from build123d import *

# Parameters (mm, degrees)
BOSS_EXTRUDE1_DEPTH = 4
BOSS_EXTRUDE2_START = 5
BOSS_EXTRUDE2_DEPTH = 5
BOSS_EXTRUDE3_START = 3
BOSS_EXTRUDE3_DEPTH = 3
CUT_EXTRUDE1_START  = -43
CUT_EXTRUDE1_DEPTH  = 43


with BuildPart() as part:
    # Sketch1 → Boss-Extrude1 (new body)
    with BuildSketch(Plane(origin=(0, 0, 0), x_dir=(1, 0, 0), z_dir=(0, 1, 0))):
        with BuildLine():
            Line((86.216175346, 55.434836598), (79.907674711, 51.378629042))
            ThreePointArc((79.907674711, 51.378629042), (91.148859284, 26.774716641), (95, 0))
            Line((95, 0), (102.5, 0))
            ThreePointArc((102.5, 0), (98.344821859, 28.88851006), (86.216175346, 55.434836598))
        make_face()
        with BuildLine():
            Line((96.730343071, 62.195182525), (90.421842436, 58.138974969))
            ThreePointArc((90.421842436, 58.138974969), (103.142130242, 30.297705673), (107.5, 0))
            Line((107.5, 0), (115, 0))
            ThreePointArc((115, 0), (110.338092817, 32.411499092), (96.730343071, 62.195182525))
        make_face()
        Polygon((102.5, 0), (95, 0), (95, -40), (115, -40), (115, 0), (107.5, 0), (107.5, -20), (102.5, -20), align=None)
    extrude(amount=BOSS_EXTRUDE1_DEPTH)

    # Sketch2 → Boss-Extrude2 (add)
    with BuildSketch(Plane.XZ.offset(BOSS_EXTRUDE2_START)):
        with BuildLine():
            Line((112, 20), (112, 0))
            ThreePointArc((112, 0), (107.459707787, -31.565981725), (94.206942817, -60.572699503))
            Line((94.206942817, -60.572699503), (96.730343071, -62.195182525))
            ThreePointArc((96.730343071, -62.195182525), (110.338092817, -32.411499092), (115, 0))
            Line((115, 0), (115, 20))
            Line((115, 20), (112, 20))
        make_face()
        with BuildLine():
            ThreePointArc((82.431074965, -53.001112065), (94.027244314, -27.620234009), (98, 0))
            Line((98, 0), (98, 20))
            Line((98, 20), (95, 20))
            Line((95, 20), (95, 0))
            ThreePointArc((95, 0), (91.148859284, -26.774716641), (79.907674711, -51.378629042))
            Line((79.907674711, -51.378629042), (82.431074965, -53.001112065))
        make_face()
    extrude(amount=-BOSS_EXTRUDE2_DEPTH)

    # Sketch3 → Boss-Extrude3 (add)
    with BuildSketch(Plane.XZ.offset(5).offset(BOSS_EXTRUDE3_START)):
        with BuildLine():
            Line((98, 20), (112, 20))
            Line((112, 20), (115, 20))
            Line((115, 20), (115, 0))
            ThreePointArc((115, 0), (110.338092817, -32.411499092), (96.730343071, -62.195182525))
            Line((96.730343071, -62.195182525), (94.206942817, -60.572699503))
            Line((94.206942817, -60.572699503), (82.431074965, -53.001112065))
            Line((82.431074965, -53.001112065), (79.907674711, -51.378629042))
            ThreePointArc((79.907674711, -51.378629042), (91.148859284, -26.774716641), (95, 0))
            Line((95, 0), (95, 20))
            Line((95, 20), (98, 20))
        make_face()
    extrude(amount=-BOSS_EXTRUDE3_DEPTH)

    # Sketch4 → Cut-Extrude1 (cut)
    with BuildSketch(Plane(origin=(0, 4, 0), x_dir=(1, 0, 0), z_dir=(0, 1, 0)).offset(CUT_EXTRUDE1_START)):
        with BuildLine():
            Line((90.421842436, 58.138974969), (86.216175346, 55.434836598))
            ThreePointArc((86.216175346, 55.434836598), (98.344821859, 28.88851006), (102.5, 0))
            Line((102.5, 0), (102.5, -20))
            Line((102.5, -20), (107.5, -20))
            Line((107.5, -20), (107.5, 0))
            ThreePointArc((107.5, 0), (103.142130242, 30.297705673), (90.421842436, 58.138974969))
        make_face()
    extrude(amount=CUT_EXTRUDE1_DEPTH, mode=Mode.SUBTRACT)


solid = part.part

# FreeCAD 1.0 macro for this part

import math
import FreeCAD as App
import Part
import Sketcher
from FreeCAD import Vector
Q = App.Units.Quantity

doc = App.newDocument("Part")
params = doc.addObject("Spreadsheet::Sheet", "Params")
for row, (alias, value) in enumerate([
    ("sketch1_radius", "95 mm"),
    ("sketch1_radius2", "115 mm"),
    ("sketch1_radius3", "107.5 mm"),
    ("sketch1_height", "40 mm"),
    ("pad1_length", "4 mm"),
    ("sketch2_radius", "112 mm"),
    ("sketch2_radius2", "115 mm"),
    ("sketch2_radius3", "98 mm"),
    ("sketch2_height", "20 mm"),
    ("pad2_length", "5 mm"),
    ("sketch3_radius", "95 mm"),
    ("sketch3_radius2", "115 mm"),
    ("sketch3_length", "3 mm"),
    ("pad3_length", "3 mm"),
    ("sketch4_radius", "102.5 mm"),
    ("sketch4_radius2", "107.5 mm"),
    ("sketch4_height", "20 mm"),
    ("pocket1_length", "43 mm"),
], start=1):
    params.set(f"A{row}", alias)
    params.set(f"B{row}", "=" + value)
    params.setAlias(f"B{row}", alias)

body = doc.addObject("PartDesign::Body", "Body")

# Sketch on XZ plane
sketch1 = body.newObject("Sketcher::SketchObject", "Sketch")
sketch1.AttachmentSupport = (doc.getObject("XZ_Plane"), [""])
sketch1.MapMode = "FlatFace"
sketch1.addGeometry(Part.LineSegment(Vector(86, -55, 0), Vector(80, -51, 0)), False)
sketch1.addGeometry(Part.ArcOfCircle(Part.Circle(Vector(0, 0, 0), Vector(0, 0, 1), 95), math.radians(-33), math.radians(0)), False)
sketch1.addGeometry(Part.LineSegment(Vector(95, 0, 0), Vector(95, 40, 0)), False)
sketch1.addGeometry(Part.LineSegment(Vector(95, 40, 0), Vector(115, 40, 0)), False)
sketch1.addGeometry(Part.LineSegment(Vector(115, 40, 0), Vector(115, 0, 0)), False)
sketch1.addGeometry(Part.ArcOfCircle(Part.Circle(Vector(0, 0, 0), Vector(0, 0, 1), 115), math.radians(-33), math.radians(0)), False)
sketch1.addGeometry(Part.LineSegment(Vector(97, -62, 0), Vector(90, -58, 0)), False)
sketch1.addGeometry(Part.ArcOfCircle(Part.Circle(Vector(0, 0, 0), Vector(0, 0, 1), 108), math.radians(-33), math.radians(0)), False)
sketch1.addGeometry(Part.LineSegment(Vector(108, 0, 0), Vector(108, 20, 0)), False)
sketch1.addGeometry(Part.LineSegment(Vector(108, 20, 0), Vector(102, 20, 0)), False)
sketch1.addGeometry(Part.LineSegment(Vector(102, 20, 0), Vector(102, 0, 0)), False)
sketch1.addGeometry(Part.ArcOfCircle(Part.Circle(Vector(0, 0, 0), Vector(0, 0, 1), 102), math.radians(-33), math.radians(0)), False)
sketch1.addConstraint(Sketcher.Constraint("Coincident", 0, 2, 1, 1))
sketch1.addConstraint(Sketcher.Constraint("Tangent", 1, 2, 2, 1))
sketch1.addConstraint(Sketcher.Constraint("Coincident", 2, 2, 3, 1))
sketch1.addConstraint(Sketcher.Constraint("Coincident", 3, 2, 4, 1))
sketch1.addConstraint(Sketcher.Constraint("Tangent", 4, 2, 5, 2))
sketch1.addConstraint(Sketcher.Constraint("Coincident", 5, 1, 6, 1))
sketch1.addConstraint(Sketcher.Constraint("Coincident", 6, 2, 7, 1))
sketch1.addConstraint(Sketcher.Constraint("Tangent", 7, 2, 8, 1))
sketch1.addConstraint(Sketcher.Constraint("Coincident", 8, 2, 9, 1))
sketch1.addConstraint(Sketcher.Constraint("Coincident", 9, 2, 10, 1))
sketch1.addConstraint(Sketcher.Constraint("Tangent", 10, 2, 11, 2))
sketch1.addConstraint(Sketcher.Constraint("Coincident", 11, 1, 0, 1))
sketch1.addConstraint(Sketcher.Constraint("Vertical", 2))
sketch1.addConstraint(Sketcher.Constraint("Horizontal", 3))
sketch1.addConstraint(Sketcher.Constraint("Vertical", 4))
sketch1.addConstraint(Sketcher.Constraint("Vertical", 8))
sketch1.addConstraint(Sketcher.Constraint("Horizontal", 9))
sketch1.addConstraint(Sketcher.Constraint("Vertical", 10))
sketch1.addConstraint(Sketcher.Constraint("Coincident", 1, 3, -1, 1))
sketch1.addConstraint(Sketcher.Constraint("Coincident", 5, 3, -1, 1))
sketch1.addConstraint(Sketcher.Constraint("Coincident", 7, 3, -1, 1))
sketch1.addConstraint(Sketcher.Constraint("Coincident", 11, 3, -1, 1))
sketch1.addConstraint(Sketcher.Constraint("Parallel", 0, 6))
sketch1.addConstraint(Sketcher.Constraint("Equal", 3, 8))
sketch1.addConstraint(Sketcher.Constraint("Equal", 0, 6))
sketch1.addConstraint(Sketcher.Constraint("Radius", 1, 95.0))
sketch1.addConstraint(Sketcher.Constraint("Radius", 5, 115.0))
sketch1.addConstraint(Sketcher.Constraint("Radius", 7, 107.5))
sketch1.addConstraint(Sketcher.Constraint("DistanceY", 2, 1, 2, 2, 40.0))
sketch1.addConstraint(Sketcher.Constraint("Angle", 0, Q("147.26 deg")))
sketch1.addConstraint(Sketcher.Constraint("DistanceY", 0, 2, -1, 1, 51.378629))
sketch1.addConstraint(Sketcher.Constraint("DistanceX", 0, 2, 5, 1, 16.822668))
sketch1.setExpression("Constraints[25]", "Params.sketch1_radius")
sketch1.setExpression("Constraints[26]", "Params.sketch1_radius2")
sketch1.setExpression("Constraints[27]", "Params.sketch1_radius3")
sketch1.setExpression("Constraints[28]", "Params.sketch1_height")
pad1 = body.newObject("PartDesign::Pad", "Pad")
pad1.Profile = sketch1
pad1.setExpression("Length", "Params.pad1_length")
pad1.Reversed = True

# Sketch on XZ plane
sketch2 = body.newObject("Sketcher::SketchObject", "Sketch001")
sketch2.AttachmentSupport = (doc.getObject("XZ_Plane"), [""])
sketch2.MapMode = "FlatFace"
sketch2.AttachmentOffset = App.Placement(Vector(0, 0, 5), App.Rotation())
sketch2.addGeometry(Part.LineSegment(Vector(112, 20, 0), Vector(112, 0, 0)), False)
sketch2.addGeometry(Part.ArcOfCircle(Part.Circle(Vector(0, 0, 0), Vector(0, 0, 1), 112), math.radians(-33), math.radians(0)), False)
sketch2.addGeometry(Part.LineSegment(Vector(94.2, -60.6, 0), Vector(96.7, -62.2, 0)), False)
sketch2.addGeometry(Part.ArcOfCircle(Part.Circle(Vector(0, 0, 0), Vector(0, 0, 1), 115), math.radians(-33), math.radians(0)), False)
sketch2.addGeometry(Part.LineSegment(Vector(115, 0, 0), Vector(115, 20, 0)), False)
sketch2.addGeometry(Part.LineSegment(Vector(115, 20, 0), Vector(112, 20, 0)), False)
sketch2.addGeometry(Part.ArcOfCircle(Part.Circle(Vector(0, 0, 0), Vector(0, 0, 1), 98), math.radians(-33), math.radians(0)), False)
sketch2.addGeometry(Part.LineSegment(Vector(98, 0, 0), Vector(98, 20, 0)), False)
sketch2.addGeometry(Part.LineSegment(Vector(98, 20, 0), Vector(95, 20, 0)), False)
sketch2.addGeometry(Part.LineSegment(Vector(95, 20, 0), Vector(95, 0, 0)), False)
sketch2.addGeometry(Part.ArcOfCircle(Part.Circle(Vector(0, 0, 0), Vector(0, 0, 1), 95), math.radians(-33), math.radians(0)), False)
sketch2.addGeometry(Part.LineSegment(Vector(79.9, -51.4, 0), Vector(82.4, -53, 0)), False)
sketch2.addConstraint(Sketcher.Constraint("Tangent", 0, 2, 1, 2))
sketch2.addConstraint(Sketcher.Constraint("Coincident", 1, 1, 2, 1))
sketch2.addConstraint(Sketcher.Constraint("Coincident", 2, 2, 3, 1))
sketch2.addConstraint(Sketcher.Constraint("Tangent", 3, 2, 4, 1))
sketch2.addConstraint(Sketcher.Constraint("Coincident", 4, 2, 5, 1))
sketch2.addConstraint(Sketcher.Constraint("Coincident", 5, 2, 0, 1))
sketch2.addConstraint(Sketcher.Constraint("Tangent", 6, 2, 7, 1))
sketch2.addConstraint(Sketcher.Constraint("Coincident", 7, 2, 8, 1))
sketch2.addConstraint(Sketcher.Constraint("Coincident", 8, 2, 9, 1))
sketch2.addConstraint(Sketcher.Constraint("Tangent", 9, 2, 10, 2))
sketch2.addConstraint(Sketcher.Constraint("Coincident", 10, 1, 11, 1))
sketch2.addConstraint(Sketcher.Constraint("Coincident", 11, 2, 6, 1))
sketch2.addConstraint(Sketcher.Constraint("Vertical", 0))
sketch2.addConstraint(Sketcher.Constraint("Vertical", 4))
sketch2.addConstraint(Sketcher.Constraint("Horizontal", 5))
sketch2.addConstraint(Sketcher.Constraint("Vertical", 7))
sketch2.addConstraint(Sketcher.Constraint("Horizontal", 8))
sketch2.addConstraint(Sketcher.Constraint("Vertical", 9))
sketch2.addConstraint(Sketcher.Constraint("Coincident", 1, 3, -1, 1))
sketch2.addConstraint(Sketcher.Constraint("Coincident", 3, 3, -1, 1))
sketch2.addConstraint(Sketcher.Constraint("Coincident", 6, 3, -1, 1))
sketch2.addConstraint(Sketcher.Constraint("Coincident", 10, 3, -1, 1))
sketch2.addConstraint(Sketcher.Constraint("Parallel", 2, 11))
sketch2.addConstraint(Sketcher.Constraint("Horizontal", 5, 2, 7, 2))
sketch2.addConstraint(Sketcher.Constraint("Equal", 5, 8))
sketch2.addConstraint(Sketcher.Constraint("Radius", 1, 112.0))
sketch2.addConstraint(Sketcher.Constraint("Radius", 3, 115.0))
sketch2.addConstraint(Sketcher.Constraint("Radius", 6, 98.0))
sketch2.addConstraint(Sketcher.Constraint("DistanceY", 0, 2, 0, 1, 20.0))
sketch2.addConstraint(Sketcher.Constraint("Angle", 2, Q("-32.74 deg")))
sketch2.addConstraint(Sketcher.Constraint("DistanceY", 1, 1, -1, 1, 60.5727))
sketch2.addConstraint(Sketcher.Constraint("DistanceY", 10, 1, -1, 1, 51.378629))
sketch2.setExpression("Constraints[25]", "Params.sketch2_radius")
sketch2.setExpression("Constraints[26]", "Params.sketch2_radius2")
sketch2.setExpression("Constraints[27]", "Params.sketch2_radius3")
sketch2.setExpression("Constraints[28]", "Params.sketch2_height")
pad2 = body.newObject("PartDesign::Pad", "Pad001")
pad2.Profile = sketch2
pad2.setExpression("Length", "Params.pad2_length")
pad2.Reversed = True

# Sketch on XZ plane
sketch3 = body.newObject("Sketcher::SketchObject", "Sketch002")
sketch3.AttachmentSupport = (doc.getObject("XZ_Plane"), [""])
sketch3.MapMode = "FlatFace"
sketch3.AttachmentOffset = App.Placement(Vector(0, 0, 8), App.Rotation())
sketch3.addGeometry(Part.LineSegment(Vector(115, 0, 0), Vector(115, 20, 0)), False)
sketch3.addGeometry(Part.LineSegment(Vector(115, 20, 0), Vector(95, 20, 0)), False)
sketch3.addGeometry(Part.LineSegment(Vector(95, 20, 0), Vector(95, 0, 0)), False)
sketch3.addGeometry(Part.ArcOfCircle(Part.Circle(Vector(0, 0, 0), Vector(0, 0, 1), 95), math.radians(-33), math.radians(0)), False)
sketch3.addGeometry(Part.LineSegment(Vector(79.9, -51.4, 0), Vector(82.4, -53, 0)), False)
sketch3.addGeometry(Part.LineSegment(Vector(82.4, -53, 0), Vector(94.2, -60.6, 0)), False)
sketch3.addGeometry(Part.LineSegment(Vector(94.2, -60.6, 0), Vector(96.7, -62.2, 0)), False)
sketch3.addGeometry(Part.ArcOfCircle(Part.Circle(Vector(0, 0, 0), Vector(0, 0, 1), 115), math.radians(-33), math.radians(0)), False)
sketch3.addConstraint(Sketcher.Constraint("Coincident", 0, 2, 1, 1))
sketch3.addConstraint(Sketcher.Constraint("Coincident", 1, 2, 2, 1))
sketch3.addConstraint(Sketcher.Constraint("Tangent", 2, 2, 3, 2))
sketch3.addConstraint(Sketcher.Constraint("Coincident", 3, 1, 4, 1))
sketch3.addConstraint(Sketcher.Constraint("Coincident", 4, 2, 5, 1))
sketch3.addConstraint(Sketcher.Constraint("Coincident", 5, 2, 6, 1))
sketch3.addConstraint(Sketcher.Constraint("Coincident", 6, 2, 7, 1))
sketch3.addConstraint(Sketcher.Constraint("Tangent", 7, 2, 0, 1))
sketch3.addConstraint(Sketcher.Constraint("Vertical", 0))
sketch3.addConstraint(Sketcher.Constraint("Horizontal", 1))
sketch3.addConstraint(Sketcher.Constraint("Vertical", 2))
sketch3.addConstraint(Sketcher.Constraint("Coincident", 3, 3, -1, 1))
sketch3.addConstraint(Sketcher.Constraint("Coincident", 7, 3, -1, 1))
sketch3.addConstraint(Sketcher.Constraint("Parallel", 4, 5))
sketch3.addConstraint(Sketcher.Constraint("Parallel", 5, 6))
sketch3.addConstraint(Sketcher.Constraint("Equal", 1, 0))
sketch3.addConstraint(Sketcher.Constraint("Equal", 4, 6))
sketch3.addConstraint(Sketcher.Constraint("Radius", 3, 95.0))
sketch3.addConstraint(Sketcher.Constraint("Radius", 7, 115.0))
sketch3.addConstraint(Sketcher.Constraint("Distance", 4, 3.0))
sketch3.addConstraint(Sketcher.Constraint("Angle", 4, Q("-32.74 deg")))
sketch3.addConstraint(Sketcher.Constraint("DistanceY", 5, 2, -1, 1, 60.5727))
sketch3.setExpression("Constraints[17]", "Params.sketch3_radius")
sketch3.setExpression("Constraints[18]", "Params.sketch3_radius2")
sketch3.setExpression("Constraints[19]", "Params.sketch3_length")
pad3 = body.newObject("PartDesign::Pad", "Pad002")
pad3.Profile = sketch3
pad3.setExpression("Length", "Params.pad3_length")
pad3.Reversed = True

# Sketch on XZ plane
sketch4 = body.newObject("Sketcher::SketchObject", "Sketch003")
sketch4.AttachmentSupport = (doc.getObject("XZ_Plane"), [""])
sketch4.MapMode = "FlatFace"
sketch4.AttachmentOffset = App.Placement(Vector(0, 0, 39), App.Rotation())
sketch4.addGeometry(Part.LineSegment(Vector(90, -58, 0), Vector(86, -55, 0)), False)
sketch4.addGeometry(Part.ArcOfCircle(Part.Circle(Vector(0, 0, 0), Vector(0, 0, 1), 102), math.radians(-33), math.radians(0)), False)
sketch4.addGeometry(Part.LineSegment(Vector(102, 0, 0), Vector(102, 20, 0)), False)
sketch4.addGeometry(Part.LineSegment(Vector(102, 20, 0), Vector(108, 20, 0)), False)
sketch4.addGeometry(Part.LineSegment(Vector(108, 20, 0), Vector(108, 0, 0)), False)
sketch4.addGeometry(Part.ArcOfCircle(Part.Circle(Vector(0, 0, 0), Vector(0, 0, 1), 108), math.radians(-33), math.radians(0)), False)
sketch4.addConstraint(Sketcher.Constraint("Coincident", 0, 2, 1, 1))
sketch4.addConstraint(Sketcher.Constraint("Tangent", 1, 2, 2, 1))
sketch4.addConstraint(Sketcher.Constraint("Coincident", 2, 2, 3, 1))
sketch4.addConstraint(Sketcher.Constraint("Coincident", 3, 2, 4, 1))
sketch4.addConstraint(Sketcher.Constraint("Tangent", 4, 2, 5, 2))
sketch4.addConstraint(Sketcher.Constraint("Coincident", 5, 1, 0, 1))
sketch4.addConstraint(Sketcher.Constraint("Vertical", 2))
sketch4.addConstraint(Sketcher.Constraint("Horizontal", 3))
sketch4.addConstraint(Sketcher.Constraint("Vertical", 4))
sketch4.addConstraint(Sketcher.Constraint("Coincident", 1, 3, -1, 1))
sketch4.addConstraint(Sketcher.Constraint("Coincident", 5, 3, -1, 1))
sketch4.addConstraint(Sketcher.Constraint("Radius", 1, 102.5))
sketch4.addConstraint(Sketcher.Constraint("Radius", 5, 107.5))
sketch4.addConstraint(Sketcher.Constraint("DistanceY", 2, 1, 2, 2, 20.0))
sketch4.addConstraint(Sketcher.Constraint("Angle", 0, Q("147.26 deg")))
sketch4.addConstraint(Sketcher.Constraint("DistanceX", -1, 1, 0, 2, 86.216175))
sketch4.setExpression("Constraints[11]", "Params.sketch4_radius")
sketch4.setExpression("Constraints[12]", "Params.sketch4_radius2")
sketch4.setExpression("Constraints[13]", "Params.sketch4_height")
pocket1 = body.newObject("PartDesign::Pocket", "Pocket")
pocket1.Profile = sketch4
pocket1.setExpression("Length", "Params.pocket1_length")

doc.recompute()
